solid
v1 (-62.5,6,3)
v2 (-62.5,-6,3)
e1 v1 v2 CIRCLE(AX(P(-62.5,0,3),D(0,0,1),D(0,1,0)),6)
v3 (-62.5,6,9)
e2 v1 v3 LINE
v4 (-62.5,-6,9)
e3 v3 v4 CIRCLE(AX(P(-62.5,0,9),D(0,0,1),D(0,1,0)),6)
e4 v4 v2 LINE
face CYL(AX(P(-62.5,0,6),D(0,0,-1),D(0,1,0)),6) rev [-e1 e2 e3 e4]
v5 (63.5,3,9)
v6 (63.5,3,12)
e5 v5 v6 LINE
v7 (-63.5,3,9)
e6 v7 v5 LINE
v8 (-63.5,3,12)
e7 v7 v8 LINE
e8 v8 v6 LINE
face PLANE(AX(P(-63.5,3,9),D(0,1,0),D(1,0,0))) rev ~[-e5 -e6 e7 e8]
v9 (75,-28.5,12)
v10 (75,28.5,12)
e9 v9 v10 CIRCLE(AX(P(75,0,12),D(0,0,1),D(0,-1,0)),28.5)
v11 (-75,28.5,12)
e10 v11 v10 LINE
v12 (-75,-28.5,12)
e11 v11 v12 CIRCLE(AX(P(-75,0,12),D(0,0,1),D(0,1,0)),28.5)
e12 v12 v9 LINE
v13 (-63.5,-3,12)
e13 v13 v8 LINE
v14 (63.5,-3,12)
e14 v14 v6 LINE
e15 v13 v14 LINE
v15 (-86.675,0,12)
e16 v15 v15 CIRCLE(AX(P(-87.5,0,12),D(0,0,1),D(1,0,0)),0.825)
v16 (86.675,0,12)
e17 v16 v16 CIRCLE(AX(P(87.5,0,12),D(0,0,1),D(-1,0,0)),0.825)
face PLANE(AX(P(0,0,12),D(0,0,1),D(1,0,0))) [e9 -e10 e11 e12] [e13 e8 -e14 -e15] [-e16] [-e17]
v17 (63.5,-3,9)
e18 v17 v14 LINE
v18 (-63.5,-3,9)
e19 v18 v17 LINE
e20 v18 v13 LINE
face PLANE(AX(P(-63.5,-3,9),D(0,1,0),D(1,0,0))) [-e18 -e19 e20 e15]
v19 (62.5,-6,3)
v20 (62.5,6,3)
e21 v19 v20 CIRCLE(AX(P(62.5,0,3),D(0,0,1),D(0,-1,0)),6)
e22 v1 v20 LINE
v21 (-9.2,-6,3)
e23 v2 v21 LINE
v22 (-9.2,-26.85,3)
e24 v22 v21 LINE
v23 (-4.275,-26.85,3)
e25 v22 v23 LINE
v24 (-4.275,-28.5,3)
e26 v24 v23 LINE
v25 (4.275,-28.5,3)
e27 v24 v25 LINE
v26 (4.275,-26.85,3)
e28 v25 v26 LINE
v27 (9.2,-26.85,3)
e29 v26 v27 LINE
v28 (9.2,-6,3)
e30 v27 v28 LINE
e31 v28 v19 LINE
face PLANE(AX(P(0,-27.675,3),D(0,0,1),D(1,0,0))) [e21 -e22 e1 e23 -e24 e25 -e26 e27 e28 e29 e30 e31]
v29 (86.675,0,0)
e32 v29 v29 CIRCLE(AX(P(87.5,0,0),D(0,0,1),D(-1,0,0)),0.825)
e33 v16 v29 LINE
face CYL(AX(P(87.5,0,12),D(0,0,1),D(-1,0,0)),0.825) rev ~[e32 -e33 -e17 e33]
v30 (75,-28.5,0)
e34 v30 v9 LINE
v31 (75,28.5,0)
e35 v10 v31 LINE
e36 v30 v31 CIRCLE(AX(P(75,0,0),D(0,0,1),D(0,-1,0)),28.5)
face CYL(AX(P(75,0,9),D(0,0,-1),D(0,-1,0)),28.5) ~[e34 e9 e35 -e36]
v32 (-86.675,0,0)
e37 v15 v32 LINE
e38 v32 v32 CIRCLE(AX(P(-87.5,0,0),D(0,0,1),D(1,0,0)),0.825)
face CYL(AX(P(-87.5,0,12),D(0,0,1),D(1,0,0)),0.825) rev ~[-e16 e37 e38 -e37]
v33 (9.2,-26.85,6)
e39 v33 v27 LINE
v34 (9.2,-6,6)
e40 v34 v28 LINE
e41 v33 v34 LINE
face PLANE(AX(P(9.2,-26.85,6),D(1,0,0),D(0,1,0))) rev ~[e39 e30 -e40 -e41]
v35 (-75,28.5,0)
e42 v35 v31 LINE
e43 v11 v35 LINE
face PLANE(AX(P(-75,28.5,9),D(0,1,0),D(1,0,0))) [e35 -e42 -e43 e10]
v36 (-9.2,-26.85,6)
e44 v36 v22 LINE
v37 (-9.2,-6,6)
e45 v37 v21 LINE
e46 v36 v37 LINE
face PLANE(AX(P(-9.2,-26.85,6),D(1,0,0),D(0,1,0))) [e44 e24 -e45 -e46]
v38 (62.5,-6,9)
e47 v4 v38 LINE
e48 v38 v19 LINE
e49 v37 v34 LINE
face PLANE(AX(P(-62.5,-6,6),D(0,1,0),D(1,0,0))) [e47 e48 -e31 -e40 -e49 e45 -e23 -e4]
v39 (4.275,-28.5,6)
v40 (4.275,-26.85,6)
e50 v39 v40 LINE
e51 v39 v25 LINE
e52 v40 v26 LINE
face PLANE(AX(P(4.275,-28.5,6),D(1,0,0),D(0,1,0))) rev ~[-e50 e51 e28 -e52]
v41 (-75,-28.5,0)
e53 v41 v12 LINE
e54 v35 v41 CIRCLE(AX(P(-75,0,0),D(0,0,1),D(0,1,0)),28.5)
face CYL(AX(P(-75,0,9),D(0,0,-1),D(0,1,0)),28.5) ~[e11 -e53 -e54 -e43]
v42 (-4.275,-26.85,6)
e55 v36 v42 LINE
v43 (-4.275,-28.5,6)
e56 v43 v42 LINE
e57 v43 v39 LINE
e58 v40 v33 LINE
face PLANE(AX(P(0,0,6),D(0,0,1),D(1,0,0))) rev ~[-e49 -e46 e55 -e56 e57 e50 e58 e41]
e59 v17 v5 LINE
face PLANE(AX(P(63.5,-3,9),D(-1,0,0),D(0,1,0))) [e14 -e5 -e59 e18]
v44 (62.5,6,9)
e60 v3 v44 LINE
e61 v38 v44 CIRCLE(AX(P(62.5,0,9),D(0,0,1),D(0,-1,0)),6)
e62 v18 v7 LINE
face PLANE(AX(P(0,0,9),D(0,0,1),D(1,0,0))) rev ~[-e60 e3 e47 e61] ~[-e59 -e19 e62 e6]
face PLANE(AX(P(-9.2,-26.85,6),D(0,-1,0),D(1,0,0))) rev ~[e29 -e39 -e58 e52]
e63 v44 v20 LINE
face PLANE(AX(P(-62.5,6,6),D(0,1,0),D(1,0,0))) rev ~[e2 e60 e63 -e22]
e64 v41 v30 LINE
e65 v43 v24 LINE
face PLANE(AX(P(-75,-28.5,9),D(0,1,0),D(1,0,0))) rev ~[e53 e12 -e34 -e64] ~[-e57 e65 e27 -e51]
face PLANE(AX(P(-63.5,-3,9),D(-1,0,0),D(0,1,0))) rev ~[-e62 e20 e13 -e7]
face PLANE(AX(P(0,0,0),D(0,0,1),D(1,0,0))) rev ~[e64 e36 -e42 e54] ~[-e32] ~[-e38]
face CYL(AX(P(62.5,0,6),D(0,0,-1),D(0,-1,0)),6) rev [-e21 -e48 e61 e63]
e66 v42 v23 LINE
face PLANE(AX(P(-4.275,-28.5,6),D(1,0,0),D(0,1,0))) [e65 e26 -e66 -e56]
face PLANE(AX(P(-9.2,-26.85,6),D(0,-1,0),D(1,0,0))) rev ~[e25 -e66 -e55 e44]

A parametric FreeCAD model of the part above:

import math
import FreeCAD as App
import Part
import Sketcher
from FreeCAD import Vector


def add_polygon(sketch, points):
    """Adds a closed chain of lines whose ends are joined by coincident constraints."""
    first, n = sketch.GeometryCount, len(points)
    for a, b in zip(points, points[1:] + points[:1]):
        sketch.addGeometry(Part.LineSegment(App.Vector(*a, 0), App.Vector(*b, 0)), False)
    for i in range(n):
        sketch.addConstraint(Sketcher.Constraint("Coincident", first + i, 2, first + (i + 1) % n, 1))

doc = App.newDocument("Part")
body = doc.addObject("PartDesign::Body", "Body")

sketch1 = body.newObject("Sketcher::SketchObject", "Sketch")
sketch1.AttachmentSupport = (doc.getObject("XY_Plane"), [""])
sketch1.MapMode = "FlatFace"
sketch1.addGeometry(Part.ArcOfCircle(Part.Circle(Vector(-75, 0, 0), Vector(0, 0, 1), 28), math.radians(90), math.radians(270)), False)
sketch1.addGeometry(Part.LineSegment(Vector(-75, -28, 0), Vector(75, -28, 0)), False)
sketch1.addGeometry(Part.ArcOfCircle(Part.Circle(Vector(75, 0, 0), Vector(0, 0, 1), 28), math.radians(-90), math.radians(90)), False)
sketch1.addGeometry(Part.LineSegment(Vector(75, 28, 0), Vector(-75, 28, 0)), False)
sketch1.addConstraint(Sketcher.Constraint("Tangent", 0, 2, 1, 1))
sketch1.addConstraint(Sketcher.Constraint("Tangent", 1, 2, 2, 1))
sketch1.addConstraint(Sketcher.Constraint("Tangent", 2, 2, 3, 1))
sketch1.addConstraint(Sketcher.Constraint("Tangent", 3, 2, 0, 1))
sketch1.addConstraint(Sketcher.Constraint("Horizontal", 1))
sketch1.addConstraint(Sketcher.Constraint("Horizontal", 3))
sketch1.addConstraint(Sketcher.Constraint("Symmetric", 0, 3, 2, 3, -1, 1))
sketch1.addConstraint(Sketcher.Constraint("Radius", 0, 28.5))
sketch1.addConstraint(Sketcher.Constraint("DistanceX", 1, 1, 1, 2, 150.0))
pad1 = body.newObject("PartDesign::Pad", "Pad")
pad1.Profile = sketch1
pad1.Length = 6

sketch2 = body.newObject("Sketcher::SketchObject", "Sketch001")
sketch2.AttachmentSupport = (doc.getObject("XY_Plane"), [""])
sketch2.MapMode = "FlatFace"
sketch2.AttachmentOffset = App.Placement(Vector(0, 0, 6), App.Rotation())
sketch2.addGeometry(Part.ArcOfCircle(Part.Circle(Vector(-62, 0, 0), Vector(0, 0, 1), 6), math.radians(90), math.radians(270)), False)
sketch2.addGeometry(Part.LineSegment(Vector(-62, -6, 0), Vector(62, -6, 0)), False)
sketch2.addGeometry(Part.ArcOfCircle(Part.Circle(Vector(62, 0, 0), Vector(0, 0, 1), 6), math.radians(-90), math.radians(90)), False)
sketch2.addGeometry(Part.LineSegment(Vector(62, 6, 0), Vector(-62, 6, 0)), False)
sketch2.addConstraint(Sketcher.Constraint("Tangent", 0, 2, 1, 1))
sketch2.addConstraint(Sketcher.Constraint("Tangent", 1, 2, 2, 1))
sketch2.addConstraint(Sketcher.Constraint("Tangent", 2, 2, 3, 1))
sketch2.addConstraint(Sketcher.Constraint("Tangent", 3, 2, 0, 1))
sketch2.addConstraint(Sketcher.Constraint("Horizontal", 1))
sketch2.addConstraint(Sketcher.Constraint("Horizontal", 3))
sketch2.addConstraint(Sketcher.Constraint("Symmetric", 0, 3, 2, 3, -1, 1))
sketch2.addConstraint(Sketcher.Constraint("Radius", 0, 6.0))
sketch2.addConstraint(Sketcher.Constraint("DistanceX", 1, 1, 1, 2, 125.0))
pocket1 = body.newObject("PartDesign::Pocket", "Pocket")
pocket1.Profile = sketch2
pocket1.Length = 3

sketch3 = body.newObject("Sketcher::SketchObject", "Sketch002")
sketch3.AttachmentSupport = (doc.getObject("XY_Plane"), [""])
sketch3.MapMode = "FlatFace"
sketch3.AttachmentOffset = App.Placement(Vector(0, 0, 6), App.Rotation())
add_polygon(sketch3, [(-9, -6), (-9, -27), (9, -27), (9, -6)])
sketch3.addConstraint(Sketcher.Constraint("Vertical", 0))
sketch3.addConstraint(Sketcher.Constraint("Horizontal", 1))
sketch3.addConstraint(Sketcher.Constraint("Vertical", 2))
sketch3.addConstraint(Sketcher.Constraint("Horizontal", 3))
sketch3.addConstraint(Sketcher.Constraint("DistanceX", 1, 1, 1, 2, 18.4))
sketch3.addConstraint(Sketcher.Constraint("DistanceY", 2, 2, -1, 1, 6.0))
sketch3.addConstraint(Sketcher.Constraint("DistanceY", 0, 2, 0, 1, 20.85))
sketch3.addConstraint(Sketcher.Constraint("DistanceX", 0, 2, -1, 1, 9.2))
pocket2 = body.newObject("PartDesign::Pocket", "Pocket001")
pocket2.Profile = sketch3
pocket2.Length = 3

sketch4 = body.newObject("Sketcher::SketchObject", "Sketch003")
sketch4.AttachmentSupport = (doc.getObject("XY_Plane"), [""])
sketch4.MapMode = "FlatFace"
sketch4.AttachmentOffset = App.Placement(Vector(0, 0, 6), App.Rotation())
add_polygon(sketch4, [(-4.3, -26.9), (-4.3, -28.5), (4.3, -28.5), (4.3, -26.9)])
sketch4.addConstraint(Sketcher.Constraint("Vertical", 0))
sketch4.addConstraint(Sketcher.Constraint("Horizontal", 1))
sketch4.addConstraint(Sketcher.Constraint("Vertical", 2))
sketch4.addConstraint(Sketcher.Constraint("Horizontal", 3))
sketch4.addConstraint(Sketcher.Constraint("DistanceX", 1, 1, 1, 2, 8.55))
sketch4.addConstraint(Sketcher.Constraint("DistanceY", 0, 2, 0, 1, 1.65))
sketch4.addConstraint(Sketcher.Constraint("DistanceY", 0, 2, -1, 1, 28.5))
sketch4.addConstraint(Sketcher.Constraint("DistanceX", 0, 2, -1, 1, 4.275))
pocket3 = body.newObject("PartDesign::Pocket", "Pocket002")
pocket3.Profile = sketch4
pocket3.Length = 3

sketch5 = body.newObject("Sketcher::SketchObject", "Sketch004")
sketch5.AttachmentSupport = (doc.getObject("XY_Plane"), [""])
sketch5.MapMode = "FlatFace"
sketch5.AttachmentOffset = App.Placement(Vector(0, 0, 6), App.Rotation())
sketch5.addGeometry(Part.ArcOfCircle(Part.Circle(Vector(-75, 0, 0), Vector(0, 0, 1), 28), math.radians(90), math.radians(270)), False)
sketch5.addGeometry(Part.LineSegment(Vector(-75, -28, 0), Vector(75, -28, 0)), False)
sketch5.addGeometry(Part.ArcOfCircle(Part.Circle(Vector(75, 0, 0), Vector(0, 0, 1), 28), math.radians(-90), math.radians(90)), False)
sketch5.addGeometry(Part.LineSegment(Vector(75, 28, 0), Vector(-75, 28, 0)), False)
sketch5.addGeometry(Part.ArcOfCircle(Part.Circle(Vector(-62, 0, 0), Vector(0, 0, 1), 6), math.radians(90), math.radians(270)), False)
sketch5.addGeometry(Part.LineSegment(Vector(-62, 6, 0), Vector(62, 6, 0)), False)
sketch5.addGeometry(Part.ArcOfCircle(Part.Circle(Vector(62, 0, 0), Vector(0, 0, 1), 6), math.radians(-90), math.radians(90)), False)
sketch5.addGeometry(Part.LineSegment(Vector(62, -6, 0), Vector(-62, -6, 0)), False)
sketch5.addConstraint(Sketcher.Constraint("Tangent", 0, 2, 1, 1))
sketch5.addConstraint(Sketcher.Constraint("Tangent", 1, 2, 2, 1))
sketch5.addConstraint(Sketcher.Constraint("Tangent", 2, 2, 3, 1))
sketch5.addConstraint(Sketcher.Constraint("Tangent", 3, 2, 0, 1))
sketch5.addConstraint(Sketcher.Constraint("Tangent", 4, 1, 5, 1))
sketch5.addConstraint(Sketcher.Constraint("Tangent", 5, 2, 6, 2))
sketch5.addConstraint(Sketcher.Constraint("Tangent", 6, 1, 7, 1))
sketch5.addConstraint(Sketcher.Constraint("Tangent", 7, 2, 4, 2))
sketch5.addConstraint(Sketcher.Constraint("Horizontal", 1))
sketch5.addConstraint(Sketcher.Constraint("Horizontal", 3))
sketch5.addConstraint(Sketcher.Constraint("Horizontal", 5))
sketch5.addConstraint(Sketcher.Constraint("Horizontal", 7))
sketch5.addConstraint(Sketcher.Constraint("Symmetric", 0, 3, 2, 3, -1, 1))
sketch5.addConstraint(Sketcher.Constraint("Symmetric", 4, 3, 6, 3, -1, 1))
sketch5.addConstraint(Sketcher.Constraint("Radius", 4, 6.0))
sketch5.addConstraint(Sketcher.Constraint("Radius", 0, 28.5))
sketch5.addConstraint(Sketcher.Constraint("DistanceX", 1, 1, 1, 2, 150.0))
sketch5.addConstraint(Sketcher.Constraint("DistanceX", 5, 1, 5, 2, 125.0))
pad2 = body.newObject("PartDesign::Pad", "Pad001")
pad2.Profile = sketch5
pad2.Length = 3

sketch6 = body.newObject("Sketcher::SketchObject", "Sketch005")
sketch6.AttachmentSupport = (doc.getObject("XY_Plane"), [""])
sketch6.MapMode = "FlatFace"
sketch6.AttachmentOffset = App.Placement(Vector(0, 0, 9), App.Rotation())
sketch6.addGeometry(Part.ArcOfCircle(Part.Circle(Vector(-75, 0, 0), Vector(0, 0, 1), 28), math.radians(90), math.radians(270)), False)
sketch6.addGeometry(Part.LineSegment(Vector(-75, -28, 0), Vector(75, -28, 0)), False)
sketch6.addGeometry(Part.ArcOfCircle(Part.Circle(Vector(75, 0, 0), Vector(0, 0, 1), 28), math.radians(-90), math.radians(90)), False)
sketch6.addGeometry(Part.LineSegment(Vector(75, 28, 0), Vector(-75, 28, 0)), False)
add_polygon(sketch6, [(64, -3), (-64, -3), (-64, 3), (64, 3)])
sketch6.addConstraint(Sketcher.Constraint("Tangent", 0, 2, 1, 1))
sketch6.addConstraint(Sketcher.Constraint("Tangent", 1, 2, 2, 1))
sketch6.addConstraint(Sketcher.Constraint("Tangent", 2, 2, 3, 1))
sketch6.addConstraint(Sketcher.Constraint("Tangent", 3, 2, 0, 1))
sketch6.addConstraint(Sketcher.Constraint("Horizontal", 1))
sketch6.addConstraint(Sketcher.Constraint("Horizontal", 3))
sketch6.addConstraint(Sketcher.Constraint("Horizontal", 4))
sketch6.addConstraint(Sketcher.Constraint("Vertical", 5))
sketch6.addConstraint(Sketcher.Constraint("Horizontal", 6))
sketch6.addConstraint(Sketcher.Constraint("Vertical", 7))
sketch6.addConstraint(Sketcher.Constraint("Symmetric", 0, 3, 2, 3, -1, 1))
sketch6.addConstraint(Sketcher.Constraint("Symmetric", 4, 2, 6, 2, -1, 1))
sketch6.addConstraint(Sketcher.Constraint("Radius", 0, 28.5))
sketch6.addConstraint(Sketcher.Constraint("DistanceX", 1, 1, 1, 2, 150.0))
sketch6.addConstraint(Sketcher.Constraint("DistanceX", 4, 2, 4, 1, 127.0))
sketch6.addConstraint(Sketcher.Constraint("DistanceY", 5, 1, 5, 2, 6.0))
pad3 = body.newObject("PartDesign::Pad", "Pad002")
pad3.Profile = sketch6
pad3.Length = 3

sketch7 = body.newObject("Sketcher::SketchObject", "Sketch006")
sketch7.AttachmentSupport = (doc.getObject("XY_Plane"), [""])
sketch7.MapMode = "FlatFace"
sketch7.AttachmentOffset = App.Placement(Vector(0, 0, 12), App.Rotation())
sketch7.addGeometry(Part.Circle(Vector(-87.5, 0, 0), Vector(0, 0, 1), 0.8), False)
sketch7.addConstraint(Sketcher.Constraint("PointOnObject", 0, 3, -1))
sketch7.addConstraint(Sketcher.Constraint("Diameter", 0, 1.65))
sketch7.addConstraint(Sketcher.Constraint("DistanceX", 0, 3, -1, 1, 87.5))
pocket4 = body.newObject("PartDesign::Pocket", "Pocket003")
pocket4.Profile = sketch7
pocket4.Type = "ThroughAll"
doc.recompute()

polarpattern = body.newObject("PartDesign::PolarPattern", "PolarPattern")
polarpattern.Originals = [pocket4]
polarpattern.Axis = (doc.getObject("Z_Axis"), [""])
polarpattern.Angle = 360
polarpattern.Occurrences = 2
body.Tip = polarpattern

doc.recompute()
